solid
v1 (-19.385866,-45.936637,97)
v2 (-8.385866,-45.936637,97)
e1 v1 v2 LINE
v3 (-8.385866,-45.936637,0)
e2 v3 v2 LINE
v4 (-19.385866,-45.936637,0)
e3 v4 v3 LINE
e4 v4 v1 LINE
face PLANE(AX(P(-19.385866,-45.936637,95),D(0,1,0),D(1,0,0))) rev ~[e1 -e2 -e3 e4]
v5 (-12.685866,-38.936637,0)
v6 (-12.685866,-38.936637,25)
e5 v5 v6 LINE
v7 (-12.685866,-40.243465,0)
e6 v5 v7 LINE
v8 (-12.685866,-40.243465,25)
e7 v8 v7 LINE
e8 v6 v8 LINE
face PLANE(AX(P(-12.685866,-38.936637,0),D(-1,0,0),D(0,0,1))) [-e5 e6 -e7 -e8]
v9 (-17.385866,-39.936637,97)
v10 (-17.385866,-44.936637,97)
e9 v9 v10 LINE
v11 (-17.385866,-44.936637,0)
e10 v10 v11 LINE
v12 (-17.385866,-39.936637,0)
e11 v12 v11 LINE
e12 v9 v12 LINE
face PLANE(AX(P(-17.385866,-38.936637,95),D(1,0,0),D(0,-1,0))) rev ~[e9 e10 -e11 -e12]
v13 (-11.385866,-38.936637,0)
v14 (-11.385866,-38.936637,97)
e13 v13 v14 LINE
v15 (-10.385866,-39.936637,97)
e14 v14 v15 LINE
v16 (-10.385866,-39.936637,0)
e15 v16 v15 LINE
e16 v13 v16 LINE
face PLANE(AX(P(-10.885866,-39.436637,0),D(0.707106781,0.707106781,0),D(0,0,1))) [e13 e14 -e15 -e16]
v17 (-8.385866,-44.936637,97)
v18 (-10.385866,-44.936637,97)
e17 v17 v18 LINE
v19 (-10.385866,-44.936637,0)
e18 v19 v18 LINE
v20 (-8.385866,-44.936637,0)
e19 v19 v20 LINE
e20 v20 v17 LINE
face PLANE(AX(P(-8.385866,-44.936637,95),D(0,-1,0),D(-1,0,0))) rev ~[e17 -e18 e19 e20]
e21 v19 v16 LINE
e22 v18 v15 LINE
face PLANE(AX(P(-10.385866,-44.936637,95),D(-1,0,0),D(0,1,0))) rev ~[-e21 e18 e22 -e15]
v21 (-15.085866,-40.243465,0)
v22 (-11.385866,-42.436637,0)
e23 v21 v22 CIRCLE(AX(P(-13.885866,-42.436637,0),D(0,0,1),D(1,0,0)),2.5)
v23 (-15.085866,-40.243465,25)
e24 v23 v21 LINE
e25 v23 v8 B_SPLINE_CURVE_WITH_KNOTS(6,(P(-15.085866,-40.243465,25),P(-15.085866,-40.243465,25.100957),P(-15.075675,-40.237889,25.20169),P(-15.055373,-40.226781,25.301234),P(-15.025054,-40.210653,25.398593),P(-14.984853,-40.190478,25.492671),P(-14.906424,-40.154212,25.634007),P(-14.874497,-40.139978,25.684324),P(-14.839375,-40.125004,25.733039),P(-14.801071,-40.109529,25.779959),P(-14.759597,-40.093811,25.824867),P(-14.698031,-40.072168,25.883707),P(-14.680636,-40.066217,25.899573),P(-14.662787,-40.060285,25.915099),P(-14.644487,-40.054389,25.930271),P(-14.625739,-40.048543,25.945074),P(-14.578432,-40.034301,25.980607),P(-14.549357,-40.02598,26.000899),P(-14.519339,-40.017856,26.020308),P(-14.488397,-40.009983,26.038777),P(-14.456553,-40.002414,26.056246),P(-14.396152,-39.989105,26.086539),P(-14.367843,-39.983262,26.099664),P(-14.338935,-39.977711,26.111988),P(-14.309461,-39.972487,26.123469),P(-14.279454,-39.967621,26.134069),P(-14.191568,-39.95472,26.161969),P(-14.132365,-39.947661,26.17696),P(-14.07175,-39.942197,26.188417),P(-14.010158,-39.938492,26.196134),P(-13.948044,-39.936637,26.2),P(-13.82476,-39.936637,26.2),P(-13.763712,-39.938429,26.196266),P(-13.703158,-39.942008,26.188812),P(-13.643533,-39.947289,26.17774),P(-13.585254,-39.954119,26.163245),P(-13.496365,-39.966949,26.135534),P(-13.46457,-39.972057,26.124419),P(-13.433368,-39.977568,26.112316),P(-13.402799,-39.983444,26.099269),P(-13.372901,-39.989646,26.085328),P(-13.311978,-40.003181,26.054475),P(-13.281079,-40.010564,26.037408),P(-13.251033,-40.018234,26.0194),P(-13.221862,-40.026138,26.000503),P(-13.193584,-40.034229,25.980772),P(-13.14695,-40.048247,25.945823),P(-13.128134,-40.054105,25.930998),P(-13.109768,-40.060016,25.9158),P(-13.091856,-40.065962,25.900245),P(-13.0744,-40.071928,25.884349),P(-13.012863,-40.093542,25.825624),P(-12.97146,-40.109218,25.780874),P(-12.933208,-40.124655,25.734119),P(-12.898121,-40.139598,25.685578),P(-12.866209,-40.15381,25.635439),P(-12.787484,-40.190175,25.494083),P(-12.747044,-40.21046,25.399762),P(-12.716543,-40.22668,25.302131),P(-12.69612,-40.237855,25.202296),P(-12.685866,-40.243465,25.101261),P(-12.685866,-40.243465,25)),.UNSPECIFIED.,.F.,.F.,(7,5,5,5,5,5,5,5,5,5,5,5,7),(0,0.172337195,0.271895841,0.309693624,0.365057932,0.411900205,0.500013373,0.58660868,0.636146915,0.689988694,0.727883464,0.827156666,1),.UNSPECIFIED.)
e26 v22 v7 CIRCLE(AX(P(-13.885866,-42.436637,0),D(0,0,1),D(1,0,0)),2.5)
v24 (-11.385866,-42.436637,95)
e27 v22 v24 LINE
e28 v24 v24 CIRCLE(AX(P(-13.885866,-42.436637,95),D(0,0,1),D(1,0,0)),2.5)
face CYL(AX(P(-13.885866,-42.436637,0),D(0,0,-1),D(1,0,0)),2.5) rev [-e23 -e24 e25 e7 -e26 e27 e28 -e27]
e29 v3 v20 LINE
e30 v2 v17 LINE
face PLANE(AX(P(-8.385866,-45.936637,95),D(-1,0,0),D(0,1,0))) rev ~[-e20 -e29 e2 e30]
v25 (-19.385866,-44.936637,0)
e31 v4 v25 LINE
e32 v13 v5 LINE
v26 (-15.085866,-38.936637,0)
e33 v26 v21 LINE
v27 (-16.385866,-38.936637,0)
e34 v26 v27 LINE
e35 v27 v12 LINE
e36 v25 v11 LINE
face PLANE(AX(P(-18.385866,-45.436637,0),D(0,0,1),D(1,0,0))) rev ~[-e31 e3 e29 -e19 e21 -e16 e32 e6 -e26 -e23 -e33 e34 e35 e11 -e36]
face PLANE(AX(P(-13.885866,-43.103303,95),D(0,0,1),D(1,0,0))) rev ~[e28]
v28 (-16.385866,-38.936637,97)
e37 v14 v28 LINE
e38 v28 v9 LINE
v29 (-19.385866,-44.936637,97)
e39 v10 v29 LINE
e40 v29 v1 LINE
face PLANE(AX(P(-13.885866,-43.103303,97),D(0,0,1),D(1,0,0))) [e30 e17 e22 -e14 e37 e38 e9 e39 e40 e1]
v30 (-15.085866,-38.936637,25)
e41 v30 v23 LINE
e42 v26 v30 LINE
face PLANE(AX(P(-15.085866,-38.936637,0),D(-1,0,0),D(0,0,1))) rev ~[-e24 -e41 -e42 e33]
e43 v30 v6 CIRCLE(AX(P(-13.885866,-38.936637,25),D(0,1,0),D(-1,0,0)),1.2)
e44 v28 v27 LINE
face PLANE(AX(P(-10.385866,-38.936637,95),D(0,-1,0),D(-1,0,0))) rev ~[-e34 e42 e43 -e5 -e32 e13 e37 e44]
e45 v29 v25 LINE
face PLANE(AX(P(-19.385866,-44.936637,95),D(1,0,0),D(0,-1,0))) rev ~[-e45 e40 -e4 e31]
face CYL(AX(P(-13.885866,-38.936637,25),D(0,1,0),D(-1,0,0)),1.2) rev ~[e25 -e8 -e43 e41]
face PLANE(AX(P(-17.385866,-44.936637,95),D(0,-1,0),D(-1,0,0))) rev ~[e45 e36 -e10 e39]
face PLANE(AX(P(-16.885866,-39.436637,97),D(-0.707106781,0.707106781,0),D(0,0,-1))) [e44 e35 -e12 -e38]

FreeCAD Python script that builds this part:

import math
import FreeCAD as App
import Part
import Sketcher


def edges_at(feature, points):
    """Names of the edges that pass closest to the given points."""
    edges = feature.Shape.Edges
    near = lambda p: min(range(len(edges)), key=lambda i: edges[i].distToShape(Part.Vertex(*p))[0])
    return sorted({f"Edge{near(p) + 1}" for p in points})

doc = App.newDocument("Part")
params = doc.addObject("Spreadsheet::Sheet", "Params")
for row, (alias, value) in enumerate([
    ("sketch1_diameter", "5 mm"),
    ("sketch1_width", "11 mm"),
    ("sketch1_width2", "2 mm"),
    ("sketch1_height", "1 mm"),
    ("sketch1_height2", "6 mm"),
    ("pad1_length", "95 mm"),
    ("sketch2_width", "11 mm"),
    ("sketch2_width2", "2 mm"),
    ("sketch2_height", "1 mm"),
    ("sketch2_height2", "6 mm"),
    ("pad2_length", "2 mm"),
    ("chamfer_size", "1 mm"),
    ("chamfer2_size", "1 mm"),
    ("sketch3_radius", "1.2 mm"),
    ("sketch3_height", "25 mm"),
    ("pocket1_length", "1.307829 mm"),
], start=1):
    params.set(f"A{row}", alias)
    params.set(f"B{row}", "=" + value)
    params.setAlias(f"B{row}", alias)

body = doc.addObject("PartDesign::Body", "Body")

# Sketch on XY plane
sketch1 = body.newObject("Sketcher::SketchObject", "Sketch")
sketch1.AttachmentSupport = (doc.getObject("XY_Plane"), [""])
sketch1.MapMode = "FlatFace"
sketch1.addGeometry([
    Part.LineSegment(App.Vector(-19.4, -44.9, 0), App.Vector(-19.4, -45.9, 0)),  # 0
    Part.LineSegment(App.Vector(-19.4, -45.9, 0), App.Vector(-8.4, -45.9, 0)),  # 1
    Part.LineSegment(App.Vector(-8.4, -45.9, 0), App.Vector(-8.4, -44.9, 0)),  # 2
    Part.LineSegment(App.Vector(-8.4, -44.9, 0), App.Vector(-10.4, -44.9, 0)),  # 3
    Part.LineSegment(App.Vector(-10.4, -44.9, 0), App.Vector(-10.4, -38.9, 0)),  # 4
    Part.LineSegment(App.Vector(-10.4, -38.9, 0), App.Vector(-17.4, -38.9, 0)),  # 5
    Part.LineSegment(App.Vector(-17.4, -38.9, 0), App.Vector(-17.4, -44.9, 0)),  # 6
    Part.LineSegment(App.Vector(-17.4, -44.9, 0), App.Vector(-19.4, -44.9, 0)),  # 7
    Part.Circle(App.Vector(-13.9, -42.4, 0), App.Vector(0, 0, 1), 2.5),  # 8
], False)
sketch1.addConstraint([
    Sketcher.Constraint("Coincident", 0, 2, 1, 1),
    Sketcher.Constraint("Coincident", 1, 2, 2, 1),
    Sketcher.Constraint("Coincident", 2, 2, 3, 1),
    Sketcher.Constraint("Coincident", 3, 2, 4, 1),
    Sketcher.Constraint("Coincident", 4, 2, 5, 1),
    Sketcher.Constraint("Coincident", 5, 2, 6, 1),
    Sketcher.Constraint("Coincident", 6, 2, 7, 1),
    Sketcher.Constraint("Coincident", 7, 2, 0, 1),
    Sketcher.Constraint("Vertical", 0),
    Sketcher.Constraint("Horizontal", 1),
    Sketcher.Constraint("Vertical", 2),
    Sketcher.Constraint("Horizontal", 3),
    Sketcher.Constraint("Vertical", 4),
    Sketcher.Constraint("Horizontal", 5),
    Sketcher.Constraint("Vertical", 6),
    Sketcher.Constraint("Horizontal", 7),
    Sketcher.Constraint("Horizontal", 3, 2, 6, 2),
    Sketcher.Constraint("Equal", 3, 7),
    Sketcher.Constraint("Diameter", 8, 5.0),
    Sketcher.Constraint("DistanceX", 1, 1, 1, 2, 11.0),
    Sketcher.Constraint("DistanceX", 3, 2, 3, 1, 2.0),
    Sketcher.Constraint("DistanceY", 0, 2, 0, 1, 1.0),
    Sketcher.Constraint("DistanceY", 4, 1, 4, 2, 6.0),
    Sketcher.Constraint("DistanceX", 0, 2, 8, 3, 5.5),
    Sketcher.Constraint("DistanceY", 0, 2, 8, 3, 3.5),
    Sketcher.Constraint("DistanceX", 8, 3, -1, 1, 13.885866),
    Sketcher.Constraint("DistanceY", 8, 3, -1, 1, 42.436637),
])
sketch1.setExpression("Constraints[18]", "Params.sketch1_diameter")
sketch1.setExpression("Constraints[19]", "Params.sketch1_width")
sketch1.setExpression("Constraints[20]", "Params.sketch1_width2")
sketch1.setExpression("Constraints[21]", "Params.sketch1_height")
sketch1.setExpression("Constraints[22]", "Params.sketch1_height2")
pad1 = body.newObject("PartDesign::Pad", "Pad")
pad1.Profile = sketch1
pad1.setExpression("Length", "Params.pad1_length")
body2 = doc.addObject("PartDesign::Body", "Body001")

# Sketch on XY plane
sketch2 = body2.newObject("Sketcher::SketchObject", "Sketch001")
sketch2.AttachmentSupport = (doc.getObject("XY_Plane001"), [""])
sketch2.MapMode = "FlatFace"
sketch2.AttachmentOffset = App.Placement(App.Vector(0, 0, 95), App.Rotation())
sketch2.addGeometry([
    Part.LineSegment(App.Vector(-19.4, -44.9, 0), App.Vector(-19.4, -45.9, 0)),  # 0
    Part.LineSegment(App.Vector(-19.4, -45.9, 0), App.Vector(-8.4, -45.9, 0)),  # 1
    Part.LineSegment(App.Vector(-8.4, -45.9, 0), App.Vector(-8.4, -44.9, 0)),  # 2
    Part.LineSegment(App.Vector(-8.4, -44.9, 0), App.Vector(-10.4, -44.9, 0)),  # 3
    Part.LineSegment(App.Vector(-10.4, -44.9, 0), App.Vector(-10.4, -38.9, 0)),  # 4
    Part.LineSegment(App.Vector(-10.4, -38.9, 0), App.Vector(-17.4, -38.9, 0)),  # 5
    Part.LineSegment(App.Vector(-17.4, -38.9, 0), App.Vector(-17.4, -44.9, 0)),  # 6
    Part.LineSegment(App.Vector(-17.4, -44.9, 0), App.Vector(-19.4, -44.9, 0)),  # 7
], False)
sketch2.addConstraint([
    Sketcher.Constraint("Coincident", 0, 2, 1, 1),
    Sketcher.Constraint("Coincident", 1, 2, 2, 1),
    Sketcher.Constraint("Coincident", 2, 2, 3, 1),
    Sketcher.Constraint("Coincident", 3, 2, 4, 1),
    Sketcher.Constraint("Coincident", 4, 2, 5, 1),
    Sketcher.Constraint("Coincident", 5, 2, 6, 1),
    Sketcher.Constraint("Coincident", 6, 2, 7, 1),
    Sketcher.Constraint("Coincident", 7, 2, 0, 1),
    Sketcher.Constraint("Vertical", 0),
    Sketcher.Constraint("Horizontal", 1),
    Sketcher.Constraint("Vertical", 2),
    Sketcher.Constraint("Horizontal", 3),
    Sketcher.Constraint("Vertical", 4),
    Sketcher.Constraint("Horizontal", 5),
    Sketcher.Constraint("Vertical", 6),
    Sketcher.Constraint("Horizontal", 7),
    Sketcher.Constraint("Horizontal", 3, 2, 6, 2),
    Sketcher.Constraint("Equal", 3, 7),
    Sketcher.Constraint("DistanceX", 1, 1, 1, 2, 11.0),
    Sketcher.Constraint("DistanceX", 3, 2, 3, 1, 2.0),
    Sketcher.Constraint("DistanceY", 0, 2, 0, 1, 1.0),
    Sketcher.Constraint("DistanceY", 4, 1, 4, 2, 6.0),
    Sketcher.Constraint("DistanceX", 0, 2, -1, 1, 19.385866),
    Sketcher.Constraint("DistanceY", 0, 2, -1, 1, 45.936637),
])
sketch2.setExpression("Constraints[18]", "Params.sketch2_width")
sketch2.setExpression("Constraints[19]", "Params.sketch2_width2")
sketch2.setExpression("Constraints[20]", "Params.sketch2_height")
sketch2.setExpression("Constraints[21]", "Params.sketch2_height2")
pad2 = body2.newObject("PartDesign::Pad", "Pad001")
pad2.Profile = sketch2
pad2.setExpression("Length", "Params.pad2_length")
doc.recompute()

boolean = body.newObject("PartDesign::Boolean", "Boolean")
boolean.Type = "Fuse"
boolean.addObjects([body2])
doc.recompute()

chamfer = body.newObject("PartDesign::Chamfer", "Chamfer")
chamfer.Base = (boolean, edges_at(boolean, [(-10.386, -38.937, 48.5)]))
chamfer.setExpression("Size", "Params.chamfer_size")
doc.recompute()

chamfer2 = body.newObject("PartDesign::Chamfer", "Chamfer001")
chamfer2.Base = (chamfer, edges_at(chamfer, [(-17.386, -38.937, 48.5)]))
chamfer2.setExpression("Size", "Params.chamfer2_size")

# Sketch on XZ plane
sketch3 = body.newObject("Sketcher::SketchObject", "Sketch002")
sketch3.AttachmentSupport = (doc.getObject("XZ_Plane"), [""])
sketch3.MapMode = "FlatFace"
sketch3.AttachmentOffset = App.Placement(App.Vector(0, 0, 38.936637), App.Rotation())
sketch3.addGeometry([
    Part.LineSegment(App.Vector(-12.7, 25, 0), App.Vector(-12.7, 0, 0)),
    Part.LineSegment(App.Vector(-12.7, 0, 0), App.Vector(-15.1, 0, 0)),
    Part.LineSegment(App.Vector(-15.1, 0, 0), App.Vector(-15.1, 25, 0)),
    Part.ArcOfCircle(Part.Circle(App.Vector(-13.9, 25, 0), App.Vector(0, 0, 1), 1.2), math.radians(0), math.radians(180)),
], False)
sketch3.addConstraint([
    Sketcher.Constraint("Coincident", 0, 2, 1, 1),
    Sketcher.Constraint("Coincident", 1, 2, 2, 1),
    Sketcher.Constraint("Tangent", 2, 2, 3, 2),
    Sketcher.Constraint("Tangent", 3, 1, 0, 1),
    Sketcher.Constraint("Vertical", 0),
    Sketcher.Constraint("Horizontal", 1),
    Sketcher.Constraint("Vertical", 2),
    Sketcher.Constraint("PointOnObject", 0, 2, -1),
    Sketcher.Constraint("Radius", 3, 1.2),
    Sketcher.Constraint("DistanceY", 0, 2, 0, 1, 25.0),
    Sketcher.Constraint("DistanceX", 3, 3, -1, 1, 13.885866),
])
sketch3.setExpression("Constraints[8]", "Params.sketch3_radius")
sketch3.setExpression("Constraints[9]", "Params.sketch3_height")
pocket1 = body.newObject("PartDesign::Pocket", "Pocket")
pocket1.Profile = sketch3
pocket1.setExpression("Length", "Params.pocket1_length")
pocket1.Reversed = True

doc.recompute()
